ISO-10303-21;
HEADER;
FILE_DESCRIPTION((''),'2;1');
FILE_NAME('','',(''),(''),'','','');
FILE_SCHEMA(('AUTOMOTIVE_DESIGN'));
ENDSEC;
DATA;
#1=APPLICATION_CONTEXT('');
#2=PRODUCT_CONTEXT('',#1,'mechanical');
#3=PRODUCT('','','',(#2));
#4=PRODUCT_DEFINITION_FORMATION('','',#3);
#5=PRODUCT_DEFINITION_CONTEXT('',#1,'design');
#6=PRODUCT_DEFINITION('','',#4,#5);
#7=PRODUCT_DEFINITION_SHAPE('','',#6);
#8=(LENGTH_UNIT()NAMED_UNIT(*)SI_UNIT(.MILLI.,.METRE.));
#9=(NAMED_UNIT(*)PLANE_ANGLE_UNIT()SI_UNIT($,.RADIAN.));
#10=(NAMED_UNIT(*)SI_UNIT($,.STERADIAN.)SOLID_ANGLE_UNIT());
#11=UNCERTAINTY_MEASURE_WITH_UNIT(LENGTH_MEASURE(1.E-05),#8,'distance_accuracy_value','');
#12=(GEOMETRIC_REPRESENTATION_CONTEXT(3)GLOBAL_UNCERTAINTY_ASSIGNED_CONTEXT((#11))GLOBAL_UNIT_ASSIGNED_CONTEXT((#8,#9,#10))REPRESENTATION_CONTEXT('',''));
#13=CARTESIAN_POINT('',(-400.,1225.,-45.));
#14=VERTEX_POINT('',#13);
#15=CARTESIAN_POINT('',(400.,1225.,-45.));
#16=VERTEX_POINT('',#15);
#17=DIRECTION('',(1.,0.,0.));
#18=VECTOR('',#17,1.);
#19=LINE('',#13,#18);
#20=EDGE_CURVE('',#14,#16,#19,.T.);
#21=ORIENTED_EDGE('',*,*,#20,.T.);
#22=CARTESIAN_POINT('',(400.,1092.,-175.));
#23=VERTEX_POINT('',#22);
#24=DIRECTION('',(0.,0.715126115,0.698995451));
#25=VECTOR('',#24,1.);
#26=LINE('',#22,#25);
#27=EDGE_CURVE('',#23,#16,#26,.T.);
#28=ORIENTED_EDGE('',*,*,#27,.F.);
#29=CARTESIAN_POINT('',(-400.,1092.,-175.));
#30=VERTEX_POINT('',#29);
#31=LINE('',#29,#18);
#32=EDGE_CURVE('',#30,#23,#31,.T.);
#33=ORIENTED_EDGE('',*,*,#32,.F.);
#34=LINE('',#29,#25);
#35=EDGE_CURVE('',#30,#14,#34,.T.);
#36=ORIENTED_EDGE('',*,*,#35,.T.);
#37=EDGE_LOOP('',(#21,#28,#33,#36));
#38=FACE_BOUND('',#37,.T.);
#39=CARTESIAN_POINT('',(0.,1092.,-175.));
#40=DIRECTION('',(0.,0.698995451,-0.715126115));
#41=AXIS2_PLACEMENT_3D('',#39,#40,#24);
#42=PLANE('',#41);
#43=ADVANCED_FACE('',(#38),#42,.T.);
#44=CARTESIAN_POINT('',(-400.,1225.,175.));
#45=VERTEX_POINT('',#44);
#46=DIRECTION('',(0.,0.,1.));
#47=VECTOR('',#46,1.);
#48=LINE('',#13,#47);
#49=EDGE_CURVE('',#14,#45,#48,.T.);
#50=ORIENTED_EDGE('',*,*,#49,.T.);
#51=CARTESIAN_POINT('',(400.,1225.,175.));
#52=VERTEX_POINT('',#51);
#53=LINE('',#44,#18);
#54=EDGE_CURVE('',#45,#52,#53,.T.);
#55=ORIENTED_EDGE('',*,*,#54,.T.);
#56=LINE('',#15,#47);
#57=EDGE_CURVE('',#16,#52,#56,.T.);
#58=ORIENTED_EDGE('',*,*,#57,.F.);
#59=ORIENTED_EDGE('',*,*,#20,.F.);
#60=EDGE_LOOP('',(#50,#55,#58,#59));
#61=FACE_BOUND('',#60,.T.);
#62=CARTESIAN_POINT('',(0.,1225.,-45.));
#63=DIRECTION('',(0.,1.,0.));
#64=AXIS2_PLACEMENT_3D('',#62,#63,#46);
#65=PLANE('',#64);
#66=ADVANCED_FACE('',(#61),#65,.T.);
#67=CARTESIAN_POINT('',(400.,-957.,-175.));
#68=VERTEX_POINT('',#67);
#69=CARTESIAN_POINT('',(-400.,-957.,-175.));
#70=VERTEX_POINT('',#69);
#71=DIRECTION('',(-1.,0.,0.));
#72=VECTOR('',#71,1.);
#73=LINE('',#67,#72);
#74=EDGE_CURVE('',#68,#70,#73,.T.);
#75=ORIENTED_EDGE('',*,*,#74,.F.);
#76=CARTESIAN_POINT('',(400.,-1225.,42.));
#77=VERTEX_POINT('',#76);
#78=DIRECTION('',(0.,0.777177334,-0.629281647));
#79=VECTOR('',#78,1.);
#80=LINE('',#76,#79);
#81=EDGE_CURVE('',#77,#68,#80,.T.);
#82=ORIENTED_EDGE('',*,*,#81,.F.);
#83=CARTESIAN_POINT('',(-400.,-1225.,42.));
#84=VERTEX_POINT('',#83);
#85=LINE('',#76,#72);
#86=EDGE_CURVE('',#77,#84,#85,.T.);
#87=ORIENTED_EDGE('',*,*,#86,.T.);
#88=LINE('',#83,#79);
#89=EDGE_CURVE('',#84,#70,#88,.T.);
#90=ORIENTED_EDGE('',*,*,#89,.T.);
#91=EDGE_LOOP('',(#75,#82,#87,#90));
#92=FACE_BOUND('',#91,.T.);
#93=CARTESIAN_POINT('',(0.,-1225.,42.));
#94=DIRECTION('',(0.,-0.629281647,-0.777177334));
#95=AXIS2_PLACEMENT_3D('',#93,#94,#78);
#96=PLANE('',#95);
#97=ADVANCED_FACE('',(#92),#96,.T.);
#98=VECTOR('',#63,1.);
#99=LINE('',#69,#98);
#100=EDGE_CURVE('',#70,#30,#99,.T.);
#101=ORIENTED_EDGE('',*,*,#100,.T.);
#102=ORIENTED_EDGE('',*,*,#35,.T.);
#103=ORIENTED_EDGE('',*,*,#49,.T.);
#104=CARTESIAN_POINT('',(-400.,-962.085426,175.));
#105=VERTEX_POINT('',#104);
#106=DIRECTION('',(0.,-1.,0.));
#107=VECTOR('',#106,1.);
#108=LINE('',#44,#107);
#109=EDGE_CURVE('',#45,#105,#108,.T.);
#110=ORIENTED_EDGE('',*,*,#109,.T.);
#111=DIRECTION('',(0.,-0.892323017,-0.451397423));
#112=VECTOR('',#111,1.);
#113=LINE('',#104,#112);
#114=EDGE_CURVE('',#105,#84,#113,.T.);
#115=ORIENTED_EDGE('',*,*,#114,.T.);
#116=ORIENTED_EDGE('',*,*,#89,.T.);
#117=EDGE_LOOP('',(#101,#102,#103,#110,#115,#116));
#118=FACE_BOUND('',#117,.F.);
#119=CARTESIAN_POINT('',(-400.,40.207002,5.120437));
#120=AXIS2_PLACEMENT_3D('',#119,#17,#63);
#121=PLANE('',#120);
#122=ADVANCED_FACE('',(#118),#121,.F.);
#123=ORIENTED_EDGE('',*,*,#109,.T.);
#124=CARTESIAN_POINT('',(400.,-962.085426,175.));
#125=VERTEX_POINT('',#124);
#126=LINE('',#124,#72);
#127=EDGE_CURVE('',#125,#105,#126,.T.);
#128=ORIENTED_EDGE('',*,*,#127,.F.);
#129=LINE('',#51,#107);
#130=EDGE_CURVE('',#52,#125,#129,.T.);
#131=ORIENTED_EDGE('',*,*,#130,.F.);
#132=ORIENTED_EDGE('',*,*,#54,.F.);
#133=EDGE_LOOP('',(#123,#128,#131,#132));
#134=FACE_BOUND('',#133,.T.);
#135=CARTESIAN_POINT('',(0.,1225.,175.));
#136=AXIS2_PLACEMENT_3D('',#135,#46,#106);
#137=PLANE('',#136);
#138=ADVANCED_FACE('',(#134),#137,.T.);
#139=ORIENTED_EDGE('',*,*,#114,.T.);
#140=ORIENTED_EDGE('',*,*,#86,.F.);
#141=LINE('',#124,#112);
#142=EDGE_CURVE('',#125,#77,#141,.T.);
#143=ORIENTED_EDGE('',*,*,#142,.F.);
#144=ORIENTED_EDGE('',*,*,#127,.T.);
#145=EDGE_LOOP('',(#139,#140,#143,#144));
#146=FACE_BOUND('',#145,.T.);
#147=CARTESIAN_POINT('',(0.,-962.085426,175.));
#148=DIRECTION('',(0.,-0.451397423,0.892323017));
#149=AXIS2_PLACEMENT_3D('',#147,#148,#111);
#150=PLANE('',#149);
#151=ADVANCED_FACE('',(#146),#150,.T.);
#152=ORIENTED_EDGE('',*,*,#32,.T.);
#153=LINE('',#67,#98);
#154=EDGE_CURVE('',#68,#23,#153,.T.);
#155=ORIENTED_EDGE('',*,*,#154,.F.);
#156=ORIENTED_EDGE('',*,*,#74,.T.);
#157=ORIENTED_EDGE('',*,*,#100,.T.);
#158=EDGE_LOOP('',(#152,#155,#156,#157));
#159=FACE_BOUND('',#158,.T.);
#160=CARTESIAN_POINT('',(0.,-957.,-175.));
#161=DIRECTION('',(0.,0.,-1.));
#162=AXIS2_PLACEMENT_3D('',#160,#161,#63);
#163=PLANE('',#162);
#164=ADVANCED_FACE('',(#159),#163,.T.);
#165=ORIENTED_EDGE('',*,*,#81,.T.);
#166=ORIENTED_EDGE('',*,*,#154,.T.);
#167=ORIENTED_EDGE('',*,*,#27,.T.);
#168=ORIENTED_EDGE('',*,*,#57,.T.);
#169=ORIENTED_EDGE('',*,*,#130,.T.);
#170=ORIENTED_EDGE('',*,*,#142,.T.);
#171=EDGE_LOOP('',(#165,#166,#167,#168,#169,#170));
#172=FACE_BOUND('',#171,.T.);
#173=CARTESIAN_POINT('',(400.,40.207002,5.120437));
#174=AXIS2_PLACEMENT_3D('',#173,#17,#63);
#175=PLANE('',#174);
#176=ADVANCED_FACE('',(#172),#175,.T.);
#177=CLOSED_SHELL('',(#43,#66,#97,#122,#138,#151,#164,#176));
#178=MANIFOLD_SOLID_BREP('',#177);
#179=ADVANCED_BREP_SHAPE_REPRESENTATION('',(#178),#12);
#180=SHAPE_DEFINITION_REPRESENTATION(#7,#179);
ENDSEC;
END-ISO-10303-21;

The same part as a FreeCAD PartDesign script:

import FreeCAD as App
import Part
import Sketcher


def add_polygon(sketch, points):
    """Adds a closed chain of lines whose ends are joined by coincident constraints."""
    first, n = sketch.GeometryCount, len(points)
    for a, b in zip(points, points[1:] + points[:1]):
        sketch.addGeometry(Part.LineSegment(App.Vector(*a, 0), App.Vector(*b, 0)), False)
    for i in range(n):
        sketch.addConstraint(Sketcher.Constraint("Coincident", first + i, 2, first + (i + 1) % n, 1))

doc = App.newDocument("Part")
params = doc.addObject("Spreadsheet::Sheet", "Params")
for row, (alias, value) in enumerate([
    ("sketch1_width", "2049 mm"),
    ("sketch1_height", "220 mm"),
    ("pad1_length", "400 mm"),
    ("pad1_length2", "400 mm"),
], start=1):
    params.set(f"A{row}", alias)
    params.set(f"B{row}", "=" + value)
    params.setAlias(f"B{row}", alias)

body = doc.addObject("PartDesign::Body", "Body")

sketch1 = doc.addObject("Sketcher::SketchObject", "Sketch")
body.addObject(sketch1)
sketch1.AttachmentSupport = (doc.YZ_Plane, [""])
sketch1.MapMode = "FlatFace"
add_polygon(sketch1, [(-957, -175), (1092, -175), (1225, -45), (1225, 175), (-962, 175), (-1225, 42)])
sketch1.addConstraint([
    Sketcher.Constraint("Horizontal", 0),
    Sketcher.Constraint("Vertical", 2),
    Sketcher.Constraint("Horizontal", 3),
    Sketcher.Constraint("DistanceX", 0, 1, 0, 2, 2049.0),
    Sketcher.Constraint("DistanceY", 2, 1, 2, 2, 220.0),
    Sketcher.Constraint("DistanceX", -1, 1, 0, 2, 1092.0),
    Sketcher.Constraint("DistanceY", 0, 2, -1, 1, 175.0),
    Sketcher.Constraint("DistanceX", -1, 1, 1, 2, 1225.0),
    Sketcher.Constraint("DistanceY", 1, 2, -1, 1, 45.0),
    Sketcher.Constraint("DistanceX", 4, 2, -1, 1, 1225.0),
    Sketcher.Constraint("DistanceY", -1, 1, 4, 2, 42.0),
    Sketcher.Constraint("DistanceX", 3, 2, 3, 1, 2187.085426),
])
sketch1.setExpression("Constraints[9]", "Params.sketch1_width")
sketch1.setExpression("Constraints[10]", "Params.sketch1_height")
pad1 = doc.addObject("PartDesign::Pad", "Pad")
body.addObject(pad1)
pad1.Profile = sketch1
pad1.Type = "TwoLengths"
pad1.setExpression("Length", "Params.pad1_length")
pad1.setExpression("Length2", "Params.pad1_length2")

doc.recompute()
